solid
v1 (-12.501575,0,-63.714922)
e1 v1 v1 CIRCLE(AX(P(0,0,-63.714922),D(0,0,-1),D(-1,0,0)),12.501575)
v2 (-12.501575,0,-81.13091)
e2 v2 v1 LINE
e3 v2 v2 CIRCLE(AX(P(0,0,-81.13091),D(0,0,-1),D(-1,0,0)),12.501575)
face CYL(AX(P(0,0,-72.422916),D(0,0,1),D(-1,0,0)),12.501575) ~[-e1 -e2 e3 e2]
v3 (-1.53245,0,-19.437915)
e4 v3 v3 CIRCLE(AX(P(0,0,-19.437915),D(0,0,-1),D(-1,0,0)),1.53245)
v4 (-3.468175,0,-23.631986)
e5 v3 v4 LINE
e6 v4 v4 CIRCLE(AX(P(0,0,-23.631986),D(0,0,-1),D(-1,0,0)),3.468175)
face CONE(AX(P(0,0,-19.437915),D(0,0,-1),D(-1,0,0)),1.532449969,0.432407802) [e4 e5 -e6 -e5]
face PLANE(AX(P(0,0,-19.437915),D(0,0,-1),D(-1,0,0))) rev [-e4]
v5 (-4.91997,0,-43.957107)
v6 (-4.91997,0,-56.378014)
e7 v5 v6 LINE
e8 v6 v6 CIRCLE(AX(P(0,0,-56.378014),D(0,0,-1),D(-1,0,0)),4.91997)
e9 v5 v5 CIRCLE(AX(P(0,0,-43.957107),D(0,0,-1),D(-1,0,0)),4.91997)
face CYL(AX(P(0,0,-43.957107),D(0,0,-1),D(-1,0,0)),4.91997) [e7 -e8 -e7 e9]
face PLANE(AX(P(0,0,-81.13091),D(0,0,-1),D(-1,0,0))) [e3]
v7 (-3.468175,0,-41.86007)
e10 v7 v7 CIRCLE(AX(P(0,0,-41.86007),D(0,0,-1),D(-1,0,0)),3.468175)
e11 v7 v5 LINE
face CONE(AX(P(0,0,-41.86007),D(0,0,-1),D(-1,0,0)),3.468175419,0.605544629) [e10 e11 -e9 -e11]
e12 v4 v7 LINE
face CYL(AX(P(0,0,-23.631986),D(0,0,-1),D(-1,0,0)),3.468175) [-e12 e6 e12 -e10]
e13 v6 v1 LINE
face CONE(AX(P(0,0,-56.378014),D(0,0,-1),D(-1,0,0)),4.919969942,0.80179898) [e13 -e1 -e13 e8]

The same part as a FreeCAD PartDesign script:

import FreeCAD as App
import Part
import Sketcher
Q = App.Units.Quantity

doc = App.newDocument("Part")
body = doc.addObject("PartDesign::Body", "Body")

sketch1 = body.newObject("Sketcher::SketchObject", "Sketch")
sketch1.AttachmentSupport = (doc.getObject("XZ_Plane"), [""])
sketch1.MapMode = "FlatFace"
sketch1.addGeometry(Part.LineSegment(App.Vector(-12.501575, -63.714922, 0), App.Vector(-12.501575, -81.13091, 0)), False)
sketch1.addGeometry(Part.LineSegment(App.Vector(-12.501575, -81.13091, 0), App.Vector(0, -81.13091, 0)), False)
sketch1.addGeometry(Part.LineSegment(App.Vector(0, -81.13091, 0), App.Vector(0, -19.437915, 0)), False)
sketch1.addGeometry(Part.LineSegment(App.Vector(0, -19.437915, 0), App.Vector(-1.53245, -19.437915, 0)), False)
sketch1.addGeometry(Part.LineSegment(App.Vector(-1.53245, -19.437915, 0), App.Vector(-3.468175, -23.631986, 0)), False)
sketch1.addGeometry(Part.LineSegment(App.Vector(-3.468175, -23.631986, 0), App.Vector(-3.468175, -41.86007, 0)), False)
sketch1.addGeometry(Part.LineSegment(App.Vector(-3.468175, -41.86007, 0), App.Vector(-4.91997, -43.957107, 0)), False)
sketch1.addGeometry(Part.LineSegment(App.Vector(-4.91997, -43.957107, 0), App.Vector(-4.91997, -56.378014, 0)), False)
sketch1.addGeometry(Part.LineSegment(App.Vector(-4.91997, -56.378014, 0), App.Vector(-12.501575, -63.714922, 0)), False)
sketch1.addConstraint(Sketcher.Constraint("Coincident", 0, 2, 1, 1))
sketch1.addConstraint(Sketcher.Constraint("Coincident", 1, 2, 2, 1))
sketch1.addConstraint(Sketcher.Constraint("Coincident", 2, 2, 3, 1))
sketch1.addConstraint(Sketcher.Constraint("Coincident", 3, 2, 4, 1))
sketch1.addConstraint(Sketcher.Constraint("Coincident", 4, 2, 5, 1))
sketch1.addConstraint(Sketcher.Constraint("Coincident", 5, 2, 6, 1))
sketch1.addConstraint(Sketcher.Constraint("Coincident", 6, 2, 7, 1))
sketch1.addConstraint(Sketcher.Constraint("Coincident", 7, 2, 8, 1))
sketch1.addConstraint(Sketcher.Constraint("Coincident", 8, 2, 0, 1))
sketch1.addConstraint(Sketcher.Constraint("Vertical", 0))
sketch1.addConstraint(Sketcher.Constraint("Horizontal", 1))
sketch1.addConstraint(Sketcher.Constraint("Vertical", 2))
sketch1.addConstraint(Sketcher.Constraint("Horizontal", 3))
sketch1.addConstraint(Sketcher.Constraint("Vertical", 5))
sketch1.addConstraint(Sketcher.Constraint("Vertical", 7))
sketch1.addConstraint(Sketcher.Constraint("PointOnObject", 1, 2, -2))
sketch1.addConstraint(Sketcher.Constraint("Distance", 8, Q("10.5504 mm")))
sketch1.addConstraint(Sketcher.Constraint("DistanceX", 3, 2, 3, 1, Q("1.53245 mm")))
sketch1.addConstraint(Sketcher.Constraint("DistanceX", 0, 2, 4, 2, Q("9.0334 mm")))
sketch1.addConstraint(Sketcher.Constraint("Distance", 4, Q("4.619228 mm")))
sketch1.addConstraint(Sketcher.Constraint("DistanceX", 1, 1, 1, 2, Q("12.501575 mm")))
sketch1.addConstraint(Sketcher.Constraint("DistanceY", 0, 2, 0, 1, Q("17.415988 mm")))
sketch1.addConstraint(Sketcher.Constraint("DistanceY", 2, 1, 2, 2, Q("61.692995 mm")))
sketch1.addConstraint(Sketcher.Constraint("DistanceY", 5, 2, 5, 1, Q("18.228084 mm")))
sketch1.addConstraint(Sketcher.Constraint("DistanceY", 7, 2, 7, 1, Q("12.420908 mm")))
sketch1.addConstraint(Sketcher.Constraint("DistanceY", 0, 2, -1, 1, Q("81.13091 mm")))
sketch1.addConstraint(Sketcher.Constraint("DistanceX", 6, 2, -1, 1, Q("4.91997 mm")))
revolution = body.newObject("PartDesign::Revolution", "Revolution")
revolution.Profile = sketch1
revolution.ReferenceAxis = (sketch1, ["V_Axis"])
revolution.Angle = 360

doc.recompute()
